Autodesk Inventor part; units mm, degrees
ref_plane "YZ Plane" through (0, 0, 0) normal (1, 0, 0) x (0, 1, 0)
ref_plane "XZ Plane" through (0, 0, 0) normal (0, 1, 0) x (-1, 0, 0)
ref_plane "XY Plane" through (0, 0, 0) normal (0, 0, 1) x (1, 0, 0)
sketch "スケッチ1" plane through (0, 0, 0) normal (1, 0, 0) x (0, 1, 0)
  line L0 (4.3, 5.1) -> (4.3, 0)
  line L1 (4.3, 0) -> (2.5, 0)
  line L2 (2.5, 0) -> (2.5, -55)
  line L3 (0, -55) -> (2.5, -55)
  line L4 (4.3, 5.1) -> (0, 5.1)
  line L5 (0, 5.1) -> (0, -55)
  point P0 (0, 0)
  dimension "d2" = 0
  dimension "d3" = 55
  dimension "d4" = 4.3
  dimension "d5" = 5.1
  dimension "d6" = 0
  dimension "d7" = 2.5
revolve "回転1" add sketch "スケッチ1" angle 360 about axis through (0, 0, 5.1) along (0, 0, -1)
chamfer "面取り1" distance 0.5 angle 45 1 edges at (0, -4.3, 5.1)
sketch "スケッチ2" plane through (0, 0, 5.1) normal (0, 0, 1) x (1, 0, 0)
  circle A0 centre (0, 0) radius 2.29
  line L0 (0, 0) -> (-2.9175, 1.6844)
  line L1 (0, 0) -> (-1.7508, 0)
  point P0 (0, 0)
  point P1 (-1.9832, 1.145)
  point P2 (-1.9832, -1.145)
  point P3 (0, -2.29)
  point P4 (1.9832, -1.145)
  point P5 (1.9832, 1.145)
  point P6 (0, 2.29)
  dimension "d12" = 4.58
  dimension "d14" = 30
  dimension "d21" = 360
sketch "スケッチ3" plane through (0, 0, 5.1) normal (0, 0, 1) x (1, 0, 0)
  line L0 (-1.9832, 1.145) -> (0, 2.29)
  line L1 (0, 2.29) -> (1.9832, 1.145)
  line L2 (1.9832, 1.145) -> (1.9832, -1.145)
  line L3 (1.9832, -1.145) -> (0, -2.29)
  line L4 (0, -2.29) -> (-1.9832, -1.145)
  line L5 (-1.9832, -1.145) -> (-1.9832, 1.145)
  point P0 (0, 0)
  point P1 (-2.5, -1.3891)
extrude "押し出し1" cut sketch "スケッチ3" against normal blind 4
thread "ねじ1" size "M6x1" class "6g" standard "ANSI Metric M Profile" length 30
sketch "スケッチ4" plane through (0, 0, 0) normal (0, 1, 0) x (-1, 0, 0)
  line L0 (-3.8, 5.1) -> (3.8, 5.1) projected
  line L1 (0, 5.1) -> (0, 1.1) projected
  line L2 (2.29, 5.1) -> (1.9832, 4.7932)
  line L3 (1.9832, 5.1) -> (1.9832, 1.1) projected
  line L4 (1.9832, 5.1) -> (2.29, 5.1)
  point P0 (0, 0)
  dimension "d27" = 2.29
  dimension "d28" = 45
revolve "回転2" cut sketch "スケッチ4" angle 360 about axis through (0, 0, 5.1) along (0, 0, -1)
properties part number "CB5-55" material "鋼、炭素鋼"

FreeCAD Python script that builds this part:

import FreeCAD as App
import Part
import Sketcher

V = App.Vector
Q = App.Units.Quantity


def edges_at(feature, points):
    """Names of the edges that pass closest to the given points."""
    edges = feature.Shape.Edges
    near = lambda p: min(range(len(edges)), key=lambda i: edges[i].distToShape(Part.Vertex(*p))[0])
    return sorted({f"Edge{near(p) + 1}" for p in points})


def add_polygon(sketch, points):
    """Adds a closed chain of lines whose ends are joined by coincident constraints."""
    first, n = sketch.GeometryCount, len(points)
    for a, b in zip(points, points[1:] + points[:1]):
        sketch.addGeometry(Part.LineSegment(App.Vector(*a, 0), App.Vector(*b, 0)), False)
    for i in range(n):
        sketch.addConstraint(Sketcher.Constraint("Coincident", first + i, 2, first + (i + 1) % n, 1))

doc = App.newDocument("Part")
body = doc.addObject("PartDesign::Body", "Body")

# Sketch on YZ plane
sketch1 = doc.addObject("Sketcher::SketchObject", "Sketch")
body.addObject(sketch1)
sketch1.AttachmentSupport = (doc.YZ_Plane, [""])
sketch1.MapMode = "FlatFace"
add_polygon(sketch1, [(4.3, 0), (4.3, 5.1), (0, 5.1), (0, -55), (2.5, -55), (2.5, 0)])  # lines 0-5
sketch1.addConstraint([
    Sketcher.Constraint("Vertical", 0),
    Sketcher.Constraint("Horizontal", 1),
    Sketcher.Constraint("Vertical", 2),
    Sketcher.Constraint("Horizontal", 3),
    Sketcher.Constraint("Vertical", 4),
    Sketcher.Constraint("Horizontal", 5),
    Sketcher.Constraint("PointOnObject", 1, 2, -2),
    Sketcher.Constraint("PointOnObject", 4, 2, -1),
    Sketcher.Constraint("DistanceY", 4, 1, 4, 2, Q("55 mm")),
    Sketcher.Constraint("DistanceX", 1, 2, 1, 1, Q("4.3 mm")),
    Sketcher.Constraint("DistanceX", 3, 1, 3, 2, Q("2.5 mm")),
    Sketcher.Constraint("DistanceY", 0, 1, 0, 2, Q("5.1 mm")),
])
revolution = doc.addObject("PartDesign::Revolution", "Revolution")
body.addObject(revolution)
revolution.Profile = sketch1
revolution.ReferenceAxis = (sketch1, ["V_Axis"])
revolution.Angle = 360
doc.recompute()

chamfer = doc.addObject("PartDesign::Chamfer", "Chamfer")
body.addObject(chamfer)
chamfer.Base = (revolution, edges_at(revolution, [(0, -4.3, 5.1)]))
chamfer.Size = 0.5

# Sketch on XY plane
sketch2 = doc.addObject("Sketcher::SketchObject", "Sketch001")
body.addObject(sketch2)
sketch2.AttachmentSupport = (doc.XY_Plane, [""])
sketch2.MapMode = "FlatFace"
sketch2.AttachmentOffset = App.Placement(V(0, 0, 5.1), App.Rotation())
add_polygon(sketch2, [(0, 2.3), (-2, 1.1), (-2, -1.1), (0, -2.3), (2, -1.1), (2, 1.1)])  # lines 0-5
sketch2.addConstraint([
    Sketcher.Constraint("Vertical", 1),
    Sketcher.Constraint("Vertical", 4),
    Sketcher.Constraint("Symmetric", 0, 2, 3, 2, -1, 1),
    Sketcher.Constraint("Symmetric", 2, 2, 5, 2, -1, 1),
    Sketcher.Constraint("PointOnObject", 2, 2, -2),
    Sketcher.Constraint("Parallel", 2, 5),
    Sketcher.Constraint("Horizontal", 1, 2, 3, 2),
    Sketcher.Constraint("Angle", 0, Q("-150 deg")),
    Sketcher.Constraint("DistanceY", 1, 2, 1, 1, Q("2.29 mm")),
    Sketcher.Constraint("Distance", 0, Q("2.29 mm")),
])
pocket1 = doc.addObject("PartDesign::Pocket", "Pocket")
body.addObject(pocket1)
pocket1.Profile = sketch2
pocket1.Length = 4

# Sketch on XZ plane
sketch3 = doc.addObject("Sketcher::SketchObject", "Sketch002")
body.addObject(sketch3)
sketch3.AttachmentSupport = (doc.XZ_Plane, [""])
sketch3.MapMode = "FlatFace"
add_polygon(sketch3, [(-2.29, 5.1), (-1.98, 5.1), (-1.98, 4.79)])  # lines 0-2
sketch3.addConstraint([
    Sketcher.Constraint("Horizontal", 0),
    Sketcher.Constraint("Vertical", 1),
    Sketcher.Constraint("Equal", 0, 1),
    Sketcher.Constraint("DistanceX", 2, 2, -1, 1, Q("2.29 mm")),
    Sketcher.Constraint("DistanceY", -1, 1, 0, 2, Q("5.1 mm")),
    Sketcher.Constraint("Distance", 2, Q("0.434 mm")),
])
groove = doc.addObject("PartDesign::Groove", "Groove")
body.addObject(groove)
groove.Profile = sketch3
groove.ReferenceAxis = (sketch3, ["V_Axis"])
groove.Angle = 360

doc.recompute()
